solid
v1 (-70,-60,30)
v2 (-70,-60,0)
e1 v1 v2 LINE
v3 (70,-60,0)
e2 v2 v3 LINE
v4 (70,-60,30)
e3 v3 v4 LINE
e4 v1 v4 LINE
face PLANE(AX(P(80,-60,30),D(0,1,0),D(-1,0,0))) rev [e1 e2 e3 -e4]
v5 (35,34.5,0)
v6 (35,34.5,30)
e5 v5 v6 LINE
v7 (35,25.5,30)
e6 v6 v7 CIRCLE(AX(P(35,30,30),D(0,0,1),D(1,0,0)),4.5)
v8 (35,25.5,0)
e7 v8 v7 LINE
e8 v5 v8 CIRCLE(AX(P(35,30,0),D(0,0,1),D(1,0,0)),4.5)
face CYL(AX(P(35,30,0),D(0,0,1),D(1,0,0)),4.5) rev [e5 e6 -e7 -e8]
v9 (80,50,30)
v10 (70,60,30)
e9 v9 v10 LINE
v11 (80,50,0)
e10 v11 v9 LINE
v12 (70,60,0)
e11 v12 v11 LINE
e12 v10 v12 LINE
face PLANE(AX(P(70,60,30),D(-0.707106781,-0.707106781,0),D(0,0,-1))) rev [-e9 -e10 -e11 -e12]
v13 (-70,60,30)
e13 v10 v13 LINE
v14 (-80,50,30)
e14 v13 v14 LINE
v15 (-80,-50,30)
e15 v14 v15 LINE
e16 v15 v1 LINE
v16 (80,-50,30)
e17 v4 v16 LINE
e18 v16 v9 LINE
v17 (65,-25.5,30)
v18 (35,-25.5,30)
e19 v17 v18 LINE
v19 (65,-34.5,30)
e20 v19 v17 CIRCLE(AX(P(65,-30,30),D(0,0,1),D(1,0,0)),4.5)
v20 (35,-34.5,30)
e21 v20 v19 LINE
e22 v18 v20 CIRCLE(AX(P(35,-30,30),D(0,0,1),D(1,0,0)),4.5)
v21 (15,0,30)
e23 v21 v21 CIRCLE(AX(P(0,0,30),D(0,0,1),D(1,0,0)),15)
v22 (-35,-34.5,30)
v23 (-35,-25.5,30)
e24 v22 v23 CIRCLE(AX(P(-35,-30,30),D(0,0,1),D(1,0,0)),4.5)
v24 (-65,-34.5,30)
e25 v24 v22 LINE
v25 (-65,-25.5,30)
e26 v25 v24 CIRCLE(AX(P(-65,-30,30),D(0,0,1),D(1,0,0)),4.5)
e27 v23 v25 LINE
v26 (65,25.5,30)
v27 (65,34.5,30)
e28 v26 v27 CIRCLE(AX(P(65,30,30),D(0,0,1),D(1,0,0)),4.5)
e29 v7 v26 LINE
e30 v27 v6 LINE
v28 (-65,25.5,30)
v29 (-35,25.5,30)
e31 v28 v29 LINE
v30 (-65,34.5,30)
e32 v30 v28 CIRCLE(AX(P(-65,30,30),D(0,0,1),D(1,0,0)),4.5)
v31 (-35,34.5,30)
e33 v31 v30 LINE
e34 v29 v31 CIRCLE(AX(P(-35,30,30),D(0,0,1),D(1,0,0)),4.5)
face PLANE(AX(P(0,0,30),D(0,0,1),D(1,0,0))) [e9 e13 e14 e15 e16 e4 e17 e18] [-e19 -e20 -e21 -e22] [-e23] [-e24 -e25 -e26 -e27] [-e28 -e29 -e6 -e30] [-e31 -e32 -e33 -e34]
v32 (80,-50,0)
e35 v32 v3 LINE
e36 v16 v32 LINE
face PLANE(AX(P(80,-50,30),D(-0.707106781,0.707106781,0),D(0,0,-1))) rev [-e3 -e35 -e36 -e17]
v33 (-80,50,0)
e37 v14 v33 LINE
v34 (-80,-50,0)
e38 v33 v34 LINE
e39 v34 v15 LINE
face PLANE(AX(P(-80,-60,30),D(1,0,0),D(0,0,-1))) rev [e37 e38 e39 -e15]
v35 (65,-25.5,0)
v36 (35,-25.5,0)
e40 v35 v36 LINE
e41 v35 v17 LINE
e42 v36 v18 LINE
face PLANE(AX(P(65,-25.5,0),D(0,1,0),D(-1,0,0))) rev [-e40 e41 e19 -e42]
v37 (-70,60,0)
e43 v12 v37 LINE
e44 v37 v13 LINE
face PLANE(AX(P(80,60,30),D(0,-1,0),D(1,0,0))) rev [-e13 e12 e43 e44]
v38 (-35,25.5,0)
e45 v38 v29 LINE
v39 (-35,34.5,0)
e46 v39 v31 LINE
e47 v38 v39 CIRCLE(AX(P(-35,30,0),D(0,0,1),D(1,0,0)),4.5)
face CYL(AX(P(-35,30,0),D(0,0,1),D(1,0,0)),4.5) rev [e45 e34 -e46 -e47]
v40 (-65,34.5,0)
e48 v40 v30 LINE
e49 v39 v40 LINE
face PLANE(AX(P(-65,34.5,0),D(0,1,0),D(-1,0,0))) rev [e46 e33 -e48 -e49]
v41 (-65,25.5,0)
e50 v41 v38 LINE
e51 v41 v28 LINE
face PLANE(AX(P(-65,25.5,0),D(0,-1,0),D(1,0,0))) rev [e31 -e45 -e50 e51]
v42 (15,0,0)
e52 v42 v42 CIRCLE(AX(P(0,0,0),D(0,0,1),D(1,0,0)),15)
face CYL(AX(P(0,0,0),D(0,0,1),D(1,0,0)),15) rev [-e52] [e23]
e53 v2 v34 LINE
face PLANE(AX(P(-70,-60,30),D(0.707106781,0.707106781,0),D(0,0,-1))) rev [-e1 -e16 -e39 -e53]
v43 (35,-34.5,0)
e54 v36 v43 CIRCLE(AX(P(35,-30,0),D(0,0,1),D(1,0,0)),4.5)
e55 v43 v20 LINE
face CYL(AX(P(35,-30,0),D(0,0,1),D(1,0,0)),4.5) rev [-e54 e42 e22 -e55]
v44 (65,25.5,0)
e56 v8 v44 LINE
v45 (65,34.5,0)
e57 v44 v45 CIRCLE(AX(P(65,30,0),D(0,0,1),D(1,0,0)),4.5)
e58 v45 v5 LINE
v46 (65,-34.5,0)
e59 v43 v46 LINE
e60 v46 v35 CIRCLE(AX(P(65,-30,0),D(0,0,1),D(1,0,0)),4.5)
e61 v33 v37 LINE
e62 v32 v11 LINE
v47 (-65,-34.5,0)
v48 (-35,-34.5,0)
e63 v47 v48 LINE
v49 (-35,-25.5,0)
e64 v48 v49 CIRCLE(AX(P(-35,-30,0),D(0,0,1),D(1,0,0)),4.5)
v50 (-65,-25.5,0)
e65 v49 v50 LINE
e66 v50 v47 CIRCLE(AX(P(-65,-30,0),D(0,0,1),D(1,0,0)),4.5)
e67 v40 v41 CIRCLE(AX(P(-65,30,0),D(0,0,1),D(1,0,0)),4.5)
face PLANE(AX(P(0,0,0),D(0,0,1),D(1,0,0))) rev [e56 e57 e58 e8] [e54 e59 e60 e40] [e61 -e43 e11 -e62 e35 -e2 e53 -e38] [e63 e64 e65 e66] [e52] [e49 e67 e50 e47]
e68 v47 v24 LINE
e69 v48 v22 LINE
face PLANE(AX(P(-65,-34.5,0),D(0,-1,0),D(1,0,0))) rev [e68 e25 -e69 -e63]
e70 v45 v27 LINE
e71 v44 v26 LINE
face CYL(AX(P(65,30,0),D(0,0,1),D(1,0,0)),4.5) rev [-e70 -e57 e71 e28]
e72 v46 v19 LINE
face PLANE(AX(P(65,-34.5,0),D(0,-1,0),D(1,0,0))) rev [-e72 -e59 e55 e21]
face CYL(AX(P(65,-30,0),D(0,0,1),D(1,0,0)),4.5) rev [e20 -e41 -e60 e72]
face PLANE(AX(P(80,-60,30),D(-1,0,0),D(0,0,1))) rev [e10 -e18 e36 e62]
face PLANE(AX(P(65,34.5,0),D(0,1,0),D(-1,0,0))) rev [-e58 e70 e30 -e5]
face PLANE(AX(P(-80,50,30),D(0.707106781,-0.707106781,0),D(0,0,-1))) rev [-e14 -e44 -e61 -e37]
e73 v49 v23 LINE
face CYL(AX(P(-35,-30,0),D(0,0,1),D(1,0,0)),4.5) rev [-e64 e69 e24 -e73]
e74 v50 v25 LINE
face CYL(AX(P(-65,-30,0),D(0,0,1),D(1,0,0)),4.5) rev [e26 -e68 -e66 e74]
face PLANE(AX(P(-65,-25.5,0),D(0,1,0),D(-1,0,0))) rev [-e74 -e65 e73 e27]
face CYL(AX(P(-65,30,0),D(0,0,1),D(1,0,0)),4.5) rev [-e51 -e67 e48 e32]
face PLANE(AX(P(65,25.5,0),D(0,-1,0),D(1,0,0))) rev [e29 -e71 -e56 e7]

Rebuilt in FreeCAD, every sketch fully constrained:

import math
import FreeCAD as App
import Part
import Sketcher
Q = App.Units.Quantity


def edges_at(feature, points):
    """Names of the edges that pass closest to the given points."""
    edges = feature.Shape.Edges
    near = lambda p: min(range(len(edges)), key=lambda i: edges[i].distToShape(Part.Vertex(*p))[0])
    return sorted({f"Edge{near(p) + 1}" for p in points})


def add_polygon(sketch, points):
    """Adds a closed chain of lines whose ends are joined by coincident constraints."""
    first, n = sketch.GeometryCount, len(points)
    for a, b in zip(points, points[1:] + points[:1]):
        sketch.addGeometry(Part.LineSegment(App.Vector(*a, 0), App.Vector(*b, 0)), False)
    for i in range(n):
        sketch.addConstraint(Sketcher.Constraint("Coincident", first + i, 2, first + (i + 1) % n, 1))

doc = App.newDocument("Part")
body = doc.addObject("PartDesign::Body", "Body")

# Sketch on XY plane
sketch1 = doc.addObject("Sketcher::SketchObject", "Sketch")
body.addObject(sketch1)
sketch1.AttachmentSupport = (doc.XY_Plane, [""])
sketch1.MapMode = "FlatFace"
add_polygon(sketch1, [(-80, 60), (-80, -60), (80, -60), (80, 60)])  # lines 0-3
sketch1.addConstraint([
    Sketcher.Constraint("Vertical", 0),
    Sketcher.Constraint("Horizontal", 1),
    Sketcher.Constraint("Vertical", 2),
    Sketcher.Constraint("Horizontal", 3),
    Sketcher.Constraint("Symmetric", 0, 2, 2, 2, -1, 1),
    Sketcher.Constraint("DistanceX", 1, 1, 1, 2, Q("160 mm")),
    Sketcher.Constraint("DistanceY", 0, 2, 0, 1, Q("120 mm")),
])
pad1 = doc.addObject("PartDesign::Pad", "Pad")
body.addObject(pad1)
pad1.Profile = sketch1
pad1.Length = 30

# Sketch on XY plane
sketch2 = doc.addObject("Sketcher::SketchObject", "Sketch001")
body.addObject(sketch2)
sketch2.AttachmentSupport = (doc.XY_Plane, [""])
sketch2.MapMode = "FlatFace"
sketch2.AttachmentOffset = App.Placement(App.Vector(0, 0, 30), App.Rotation())
sketch2.addGeometry([
    Part.LineSegment(App.Vector(-35, 34.5, 0), App.Vector(-65, 34.5, 0)),  # 0
    Part.ArcOfCircle(Part.Circle(App.Vector(-65, 30, 0), App.Vector(0, 0, 1), 4.5), math.radians(90), math.radians(270)),  # 1
    Part.LineSegment(App.Vector(-65, 25.5, 0), App.Vector(-35, 25.5, 0)),  # 2
    Part.ArcOfCircle(Part.Circle(App.Vector(-35, 30, 0), App.Vector(0, 0, 1), 4.5), math.radians(-90), math.radians(90)),  # 3
    Part.LineSegment(App.Vector(35, 25.5, 0), App.Vector(65, 25.5, 0)),  # 4
    Part.ArcOfCircle(Part.Circle(App.Vector(65, 30, 0), App.Vector(0, 0, 1), 4.5), math.radians(-90), math.radians(90)),  # 5
    Part.LineSegment(App.Vector(65, 34.5, 0), App.Vector(35, 34.5, 0)),  # 6
    Part.ArcOfCircle(Part.Circle(App.Vector(35, 30, 0), App.Vector(0, 0, 1), 4.5), math.radians(90), math.radians(270)),  # 7
    Part.LineSegment(App.Vector(-35, -25.5, 0), App.Vector(-65, -25.5, 0)),  # 8
    Part.ArcOfCircle(Part.Circle(App.Vector(-65, -30, 0), App.Vector(0, 0, 1), 4.5), math.radians(90), math.radians(270)),  # 9
    Part.LineSegment(App.Vector(-65, -34.5, 0), App.Vector(-35, -34.5, 0)),  # 10
    Part.ArcOfCircle(Part.Circle(App.Vector(-35, -30, 0), App.Vector(0, 0, 1), 4.5), math.radians(-90), math.radians(90)),  # 11
    Part.LineSegment(App.Vector(35, -34.5, 0), App.Vector(65, -34.5, 0)),  # 12
    Part.ArcOfCircle(Part.Circle(App.Vector(65, -30, 0), App.Vector(0, 0, 1), 4.5), math.radians(-90), math.radians(90)),  # 13
    Part.LineSegment(App.Vector(65, -25.5, 0), App.Vector(35, -25.5, 0)),  # 14
    Part.ArcOfCircle(Part.Circle(App.Vector(35, -30, 0), App.Vector(0, 0, 1), 4.5), math.radians(90), math.radians(270)),  # 15
], False)
sketch2.addConstraint([
    Sketcher.Constraint("Tangent", 0, 2, 1, 1),
    Sketcher.Constraint("Tangent", 1, 2, 2, 1),
    Sketcher.Constraint("Tangent", 2, 2, 3, 1),
    Sketcher.Constraint("Tangent", 3, 2, 0, 1),
    Sketcher.Constraint("Tangent", 4, 2, 5, 1),
    Sketcher.Constraint("Tangent", 5, 2, 6, 1),
    Sketcher.Constraint("Tangent", 6, 2, 7, 1),
    Sketcher.Constraint("Tangent", 7, 2, 4, 1),
    Sketcher.Constraint("Tangent", 8, 2, 9, 1),
    Sketcher.Constraint("Tangent", 9, 2, 10, 1),
    Sketcher.Constraint("Tangent", 10, 2, 11, 1),
    Sketcher.Constraint("Tangent", 11, 2, 8, 1),
    Sketcher.Constraint("Tangent", 12, 2, 13, 1),
    Sketcher.Constraint("Tangent", 13, 2, 14, 1),
    Sketcher.Constraint("Tangent", 14, 2, 15, 1),
    Sketcher.Constraint("Tangent", 15, 2, 12, 1),
    Sketcher.Constraint("Horizontal", 0),
    Sketcher.Constraint("Horizontal", 2),
    Sketcher.Constraint("Horizontal", 4),
    Sketcher.Constraint("Horizontal", 6),
    Sketcher.Constraint("Horizontal", 8),
    Sketcher.Constraint("Horizontal", 10),
    Sketcher.Constraint("Horizontal", 12),
    Sketcher.Constraint("Horizontal", 14),
    Sketcher.Constraint("Equal", 3, 5),
    Sketcher.Constraint("Equal", 7, 9),
    Sketcher.Constraint("Equal", 11, 13),
    Sketcher.Constraint("Symmetric", 5, 3, 9, 3, -1, 1),
    Sketcher.Constraint("Symmetric", 1, 3, 13, 3, -1, 1),
    Sketcher.Constraint("Symmetric", 1, 3, 5, 3, -2),
    Sketcher.Constraint("Vertical", 3, 3, 11, 3),
    Sketcher.Constraint("Vertical", 7, 3, 15, 3),
    Sketcher.Constraint("Equal", 2, 4),
    Sketcher.Constraint("Radius", 1, Q("4.5 mm")),
    Sketcher.Constraint("DistanceX", 0, 2, 0, 1, Q("30 mm")),
    Sketcher.Constraint("DistanceX", 1, 3, -1, 1, Q("65 mm")),
    Sketcher.Constraint("DistanceY", -1, 1, 1, 3, Q("30 mm")),
])
pocket1 = doc.addObject("PartDesign::Pocket", "Pocket")
body.addObject(pocket1)
pocket1.Profile = sketch2
pocket1.Type = "ThroughAll"
doc.recompute()

chamfer = doc.addObject("PartDesign::Chamfer", "Chamfer")
body.addObject(chamfer)
chamfer.Base = (pocket1, edges_at(pocket1, [
    (-80, 60, 15),
    (80, 60, 15),
    (80, -60, 15),
    (-80, -60, 15),
]))
chamfer.Size = 10

# Sketch on XY plane
sketch3 = doc.addObject("Sketcher::SketchObject", "Sketch002")
body.addObject(sketch3)
sketch3.AttachmentSupport = (doc.XY_Plane, [""])
sketch3.MapMode = "FlatFace"
sketch3.AttachmentOffset = App.Placement(App.Vector(0, 0, 30), App.Rotation())
sketch3.addGeometry(Part.Circle(App.Vector(0, 0, 0), App.Vector(0, 0, 1), 15), False)
sketch3.addConstraint([
    Sketcher.Constraint("Coincident", 0, 3, -1, 1),
    Sketcher.Constraint("Diameter", 0, Q("30 mm")),
])
pocket2 = doc.addObject("PartDesign::Pocket", "Pocket001")
body.addObject(pocket2)
pocket2.Profile = sketch3
pocket2.Length = 30

doc.recompute()
